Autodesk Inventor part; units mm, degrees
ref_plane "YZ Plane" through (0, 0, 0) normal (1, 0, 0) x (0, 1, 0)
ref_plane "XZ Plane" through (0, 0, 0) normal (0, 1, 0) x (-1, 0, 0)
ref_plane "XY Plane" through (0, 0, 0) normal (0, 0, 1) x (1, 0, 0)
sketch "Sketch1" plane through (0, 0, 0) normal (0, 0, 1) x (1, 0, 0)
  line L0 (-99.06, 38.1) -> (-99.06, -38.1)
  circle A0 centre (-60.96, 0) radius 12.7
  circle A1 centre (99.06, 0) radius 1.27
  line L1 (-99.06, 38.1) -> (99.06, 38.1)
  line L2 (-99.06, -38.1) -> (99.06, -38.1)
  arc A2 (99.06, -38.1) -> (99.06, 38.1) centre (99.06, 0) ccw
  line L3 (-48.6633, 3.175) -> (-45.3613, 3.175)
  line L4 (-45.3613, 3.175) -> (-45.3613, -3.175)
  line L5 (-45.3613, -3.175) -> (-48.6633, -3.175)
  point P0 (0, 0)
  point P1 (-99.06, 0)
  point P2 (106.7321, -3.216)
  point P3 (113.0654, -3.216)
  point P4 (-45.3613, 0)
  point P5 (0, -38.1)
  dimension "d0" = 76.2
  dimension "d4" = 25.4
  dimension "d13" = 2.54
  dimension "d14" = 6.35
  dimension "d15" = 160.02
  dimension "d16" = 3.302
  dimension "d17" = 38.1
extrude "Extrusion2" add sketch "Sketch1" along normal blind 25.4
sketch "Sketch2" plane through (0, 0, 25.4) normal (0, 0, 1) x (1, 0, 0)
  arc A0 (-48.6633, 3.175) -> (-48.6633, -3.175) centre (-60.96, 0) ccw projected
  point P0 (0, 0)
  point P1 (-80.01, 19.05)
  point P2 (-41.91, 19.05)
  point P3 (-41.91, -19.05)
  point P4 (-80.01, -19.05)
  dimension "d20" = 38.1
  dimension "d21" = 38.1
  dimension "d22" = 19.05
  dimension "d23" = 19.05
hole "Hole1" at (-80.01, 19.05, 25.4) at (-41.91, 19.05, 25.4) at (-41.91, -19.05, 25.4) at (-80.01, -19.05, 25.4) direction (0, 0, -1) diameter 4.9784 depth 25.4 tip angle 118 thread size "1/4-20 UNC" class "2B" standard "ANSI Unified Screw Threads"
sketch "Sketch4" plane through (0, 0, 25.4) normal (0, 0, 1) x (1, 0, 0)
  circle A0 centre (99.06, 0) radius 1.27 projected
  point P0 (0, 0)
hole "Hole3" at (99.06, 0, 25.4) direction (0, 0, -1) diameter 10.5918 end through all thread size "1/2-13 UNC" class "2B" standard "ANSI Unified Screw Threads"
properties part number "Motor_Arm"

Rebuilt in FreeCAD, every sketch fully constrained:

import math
import FreeCAD as App
import Part
import Sketcher
from FreeCAD import Vector
Q = App.Units.Quantity

doc = App.newDocument("Part")
params = doc.addObject("Spreadsheet::Sheet", "Params")
for row, (alias, value) in enumerate([
    ("sketch1_diameter", "0.1 in"),
    ("sketch1_radius", "1.5 in"),
    ("sketch1_radius2", "0.5 in"),
    ("sketch1_width", "0.13 in"),
    ("sketch1_height", "0.25 in"),
    ("pad1_length", "1 in"),
    ("sketch2_diameter", "0.196 in"),
    ("hole_diameter", "0.196 in"),
    ("hole_depth", "1 in"),
    ("sketch3_diameter", "0.417 in"),
    ("hole2_diameter", "0.417 in"),
], start=1):
    params.set(f"A{row}", alias)
    params.set(f"B{row}", "=" + value)
    params.setAlias(f"B{row}", alias)

body = doc.addObject("PartDesign::Body", "Body")

# Sketch on XY plane
sketch1 = body.newObject("Sketcher::SketchObject", "Sketch")
sketch1.AttachmentSupport = (doc.getObject("XY_Plane"), [""])
sketch1.MapMode = "FlatFace"
sketch1.addGeometry([
    Part.LineSegment(Vector(99.1, 38.1, 0), Vector(-99.1, 38.1, 0)),  # 0
    Part.LineSegment(Vector(-99.1, 38.1, 0), Vector(-99.1, -38.1, 0)),  # 1
    Part.LineSegment(Vector(-99.1, -38.1, 0), Vector(99.1, -38.1, 0)),  # 2
    Part.ArcOfCircle(Part.Circle(Vector(99.1, 0, 0), Vector(0, 0, 1), 38.1), math.radians(-90), math.radians(90)),  # 3
    Part.ArcOfCircle(Part.Circle(Vector(-61, 0, 0), Vector(0, 0, 1), 12.7), math.radians(14), math.radians(346)),  # 4
    Part.LineSegment(Vector(-48.7, 3.2, 0), Vector(-45.4, 3.2, 0)),  # 5
    Part.LineSegment(Vector(-45.4, 3.2, 0), Vector(-45.4, -3.2, 0)),  # 6
    Part.LineSegment(Vector(-45.4, -3.2, 0), Vector(-48.7, -3.2, 0)),  # 7
    Part.Circle(Vector(99.1, 0, 0), Vector(0, 0, 1), 1.3),  # 8
], False)
sketch1.addConstraint([
    Sketcher.Constraint("Coincident", 0, 2, 1, 1),
    Sketcher.Constraint("Coincident", 1, 2, 2, 1),
    Sketcher.Constraint("Tangent", 2, 2, 3, 1),
    Sketcher.Constraint("Tangent", 3, 2, 0, 1),
    Sketcher.Constraint("Coincident", 4, 1, 5, 1),
    Sketcher.Constraint("Coincident", 5, 2, 6, 1),
    Sketcher.Constraint("Coincident", 6, 2, 7, 1),
    Sketcher.Constraint("Coincident", 7, 2, 4, 2),
    Sketcher.Constraint("Horizontal", 0),
    Sketcher.Constraint("Vertical", 1),
    Sketcher.Constraint("Horizontal", 2),
    Sketcher.Constraint("Horizontal", 5),
    Sketcher.Constraint("Vertical", 6),
    Sketcher.Constraint("Horizontal", 7),
    Sketcher.Constraint("Coincident", 8, 3, 3, 3),
    Sketcher.Constraint("Symmetric", 0, 2, 2, 2, -1, 1),
    Sketcher.Constraint("Symmetric", 4, 1, 7, 2, -1),
    Sketcher.Constraint("Diameter", 8, Q("0.1 in")),
    Sketcher.Constraint("Radius", 3, Q("1.5 in")),
    Sketcher.Constraint("Radius", 4, Q("0.5 in")),
    Sketcher.Constraint("DistanceX", 5, 1, 5, 2, Q("0.13 in")),
    Sketcher.Constraint("DistanceY", 6, 2, 6, 1, Q("0.25 in")),
    Sketcher.Constraint("DistanceX", 4, 3, 3, 3, Q("6.3 in")),
    Sketcher.Constraint("DistanceX", 0, 2, 4, 3, Q("1.5 in")),
])
sketch1.setExpression("Constraints[17]", "Params.sketch1_diameter")
sketch1.setExpression("Constraints[18]", "Params.sketch1_radius")
sketch1.setExpression("Constraints[19]", "Params.sketch1_radius2")
sketch1.setExpression("Constraints[20]", "Params.sketch1_width")
sketch1.setExpression("Constraints[21]", "Params.sketch1_height")
pad1 = body.newObject("PartDesign::Pad", "Pad")
pad1.Profile = sketch1
pad1.setExpression("Length", "Params.pad1_length")

# Sketch on XY plane
sketch2 = body.newObject("Sketcher::SketchObject", "Sketch001")
sketch2.AttachmentSupport = (doc.getObject("XY_Plane"), [""])
sketch2.MapMode = "FlatFace"
sketch2.AttachmentOffset = App.Placement(Vector(0, 0, 1 * 25.4), App.Rotation())
sketch2.addGeometry([
    Part.Circle(Vector(-80, 19.1, 0), Vector(0, 0, 1), 2.5),
    Part.Circle(Vector(-41.9, 19.1, 0), Vector(0, 0, 1), 2.5),
    Part.Circle(Vector(-41.9, -19.1, 0), Vector(0, 0, 1), 2.5),
    Part.Circle(Vector(-80, -19.1, 0), Vector(0, 0, 1), 2.5),
], False)
sketch2.addConstraint([
    Sketcher.Constraint("Equal", 0, 1),
    Sketcher.Constraint("Equal", 1, 2),
    Sketcher.Constraint("Equal", 2, 3),
    Sketcher.Constraint("Symmetric", 1, 3, 2, 3, -1),
    Sketcher.Constraint("Symmetric", 0, 3, 3, 3, -1),
    Sketcher.Constraint("Horizontal", 0, 3, 1, 3),
    Sketcher.Constraint("Diameter", 0, Q("0.196 in")),
    Sketcher.Constraint("DistanceX", 0, 3, 1, 3, Q("1.5 in")),
    Sketcher.Constraint("DistanceY", 2, 3, 1, 3, Q("1.5 in")),
    Sketcher.Constraint("DistanceX", 0, 3, -1, 1, Q("3.15 in")),
])
sketch2.setExpression("Constraints[6]", "Params.sketch2_diameter")
doc.recompute()
hole = body.newObject("PartDesign::Hole", "Hole")
hole.Profile = sketch2
hole.ThreadType = "None"
hole.setExpression("Diameter", "Params.hole_diameter")
hole.DepthType = "Dimension"
hole.setExpression("Depth", "Params.hole_depth")
hole.DrillPoint = "Angled"
hole.DrillPointAngle = 118

# Sketch on XY plane
sketch3 = body.newObject("Sketcher::SketchObject", "Sketch002")
sketch3.AttachmentSupport = (doc.getObject("XY_Plane"), [""])
sketch3.MapMode = "FlatFace"
sketch3.AttachmentOffset = App.Placement(Vector(0, 0, 1 * 25.4), App.Rotation())
sketch3.addGeometry(Part.Circle(Vector(99, 0, 0), Vector(0, 0, 1), 5), False)
sketch3.addConstraint([
    Sketcher.Constraint("PointOnObject", 0, 3, -1),
    Sketcher.Constraint("Diameter", 0, Q("0.417 in")),
    Sketcher.Constraint("DistanceX", -1, 1, 0, 3, Q("3.9 in")),
])
sketch3.setExpression("Constraints[1]", "Params.sketch3_diameter")
doc.recompute()
hole2 = body.newObject("PartDesign::Hole", "Hole001")
hole2.Profile = sketch3
hole2.ThreadType = "None"
hole2.setExpression("Diameter", "Params.hole2_diameter")
hole2.DepthType = "ThroughAll"

doc.recompute()
